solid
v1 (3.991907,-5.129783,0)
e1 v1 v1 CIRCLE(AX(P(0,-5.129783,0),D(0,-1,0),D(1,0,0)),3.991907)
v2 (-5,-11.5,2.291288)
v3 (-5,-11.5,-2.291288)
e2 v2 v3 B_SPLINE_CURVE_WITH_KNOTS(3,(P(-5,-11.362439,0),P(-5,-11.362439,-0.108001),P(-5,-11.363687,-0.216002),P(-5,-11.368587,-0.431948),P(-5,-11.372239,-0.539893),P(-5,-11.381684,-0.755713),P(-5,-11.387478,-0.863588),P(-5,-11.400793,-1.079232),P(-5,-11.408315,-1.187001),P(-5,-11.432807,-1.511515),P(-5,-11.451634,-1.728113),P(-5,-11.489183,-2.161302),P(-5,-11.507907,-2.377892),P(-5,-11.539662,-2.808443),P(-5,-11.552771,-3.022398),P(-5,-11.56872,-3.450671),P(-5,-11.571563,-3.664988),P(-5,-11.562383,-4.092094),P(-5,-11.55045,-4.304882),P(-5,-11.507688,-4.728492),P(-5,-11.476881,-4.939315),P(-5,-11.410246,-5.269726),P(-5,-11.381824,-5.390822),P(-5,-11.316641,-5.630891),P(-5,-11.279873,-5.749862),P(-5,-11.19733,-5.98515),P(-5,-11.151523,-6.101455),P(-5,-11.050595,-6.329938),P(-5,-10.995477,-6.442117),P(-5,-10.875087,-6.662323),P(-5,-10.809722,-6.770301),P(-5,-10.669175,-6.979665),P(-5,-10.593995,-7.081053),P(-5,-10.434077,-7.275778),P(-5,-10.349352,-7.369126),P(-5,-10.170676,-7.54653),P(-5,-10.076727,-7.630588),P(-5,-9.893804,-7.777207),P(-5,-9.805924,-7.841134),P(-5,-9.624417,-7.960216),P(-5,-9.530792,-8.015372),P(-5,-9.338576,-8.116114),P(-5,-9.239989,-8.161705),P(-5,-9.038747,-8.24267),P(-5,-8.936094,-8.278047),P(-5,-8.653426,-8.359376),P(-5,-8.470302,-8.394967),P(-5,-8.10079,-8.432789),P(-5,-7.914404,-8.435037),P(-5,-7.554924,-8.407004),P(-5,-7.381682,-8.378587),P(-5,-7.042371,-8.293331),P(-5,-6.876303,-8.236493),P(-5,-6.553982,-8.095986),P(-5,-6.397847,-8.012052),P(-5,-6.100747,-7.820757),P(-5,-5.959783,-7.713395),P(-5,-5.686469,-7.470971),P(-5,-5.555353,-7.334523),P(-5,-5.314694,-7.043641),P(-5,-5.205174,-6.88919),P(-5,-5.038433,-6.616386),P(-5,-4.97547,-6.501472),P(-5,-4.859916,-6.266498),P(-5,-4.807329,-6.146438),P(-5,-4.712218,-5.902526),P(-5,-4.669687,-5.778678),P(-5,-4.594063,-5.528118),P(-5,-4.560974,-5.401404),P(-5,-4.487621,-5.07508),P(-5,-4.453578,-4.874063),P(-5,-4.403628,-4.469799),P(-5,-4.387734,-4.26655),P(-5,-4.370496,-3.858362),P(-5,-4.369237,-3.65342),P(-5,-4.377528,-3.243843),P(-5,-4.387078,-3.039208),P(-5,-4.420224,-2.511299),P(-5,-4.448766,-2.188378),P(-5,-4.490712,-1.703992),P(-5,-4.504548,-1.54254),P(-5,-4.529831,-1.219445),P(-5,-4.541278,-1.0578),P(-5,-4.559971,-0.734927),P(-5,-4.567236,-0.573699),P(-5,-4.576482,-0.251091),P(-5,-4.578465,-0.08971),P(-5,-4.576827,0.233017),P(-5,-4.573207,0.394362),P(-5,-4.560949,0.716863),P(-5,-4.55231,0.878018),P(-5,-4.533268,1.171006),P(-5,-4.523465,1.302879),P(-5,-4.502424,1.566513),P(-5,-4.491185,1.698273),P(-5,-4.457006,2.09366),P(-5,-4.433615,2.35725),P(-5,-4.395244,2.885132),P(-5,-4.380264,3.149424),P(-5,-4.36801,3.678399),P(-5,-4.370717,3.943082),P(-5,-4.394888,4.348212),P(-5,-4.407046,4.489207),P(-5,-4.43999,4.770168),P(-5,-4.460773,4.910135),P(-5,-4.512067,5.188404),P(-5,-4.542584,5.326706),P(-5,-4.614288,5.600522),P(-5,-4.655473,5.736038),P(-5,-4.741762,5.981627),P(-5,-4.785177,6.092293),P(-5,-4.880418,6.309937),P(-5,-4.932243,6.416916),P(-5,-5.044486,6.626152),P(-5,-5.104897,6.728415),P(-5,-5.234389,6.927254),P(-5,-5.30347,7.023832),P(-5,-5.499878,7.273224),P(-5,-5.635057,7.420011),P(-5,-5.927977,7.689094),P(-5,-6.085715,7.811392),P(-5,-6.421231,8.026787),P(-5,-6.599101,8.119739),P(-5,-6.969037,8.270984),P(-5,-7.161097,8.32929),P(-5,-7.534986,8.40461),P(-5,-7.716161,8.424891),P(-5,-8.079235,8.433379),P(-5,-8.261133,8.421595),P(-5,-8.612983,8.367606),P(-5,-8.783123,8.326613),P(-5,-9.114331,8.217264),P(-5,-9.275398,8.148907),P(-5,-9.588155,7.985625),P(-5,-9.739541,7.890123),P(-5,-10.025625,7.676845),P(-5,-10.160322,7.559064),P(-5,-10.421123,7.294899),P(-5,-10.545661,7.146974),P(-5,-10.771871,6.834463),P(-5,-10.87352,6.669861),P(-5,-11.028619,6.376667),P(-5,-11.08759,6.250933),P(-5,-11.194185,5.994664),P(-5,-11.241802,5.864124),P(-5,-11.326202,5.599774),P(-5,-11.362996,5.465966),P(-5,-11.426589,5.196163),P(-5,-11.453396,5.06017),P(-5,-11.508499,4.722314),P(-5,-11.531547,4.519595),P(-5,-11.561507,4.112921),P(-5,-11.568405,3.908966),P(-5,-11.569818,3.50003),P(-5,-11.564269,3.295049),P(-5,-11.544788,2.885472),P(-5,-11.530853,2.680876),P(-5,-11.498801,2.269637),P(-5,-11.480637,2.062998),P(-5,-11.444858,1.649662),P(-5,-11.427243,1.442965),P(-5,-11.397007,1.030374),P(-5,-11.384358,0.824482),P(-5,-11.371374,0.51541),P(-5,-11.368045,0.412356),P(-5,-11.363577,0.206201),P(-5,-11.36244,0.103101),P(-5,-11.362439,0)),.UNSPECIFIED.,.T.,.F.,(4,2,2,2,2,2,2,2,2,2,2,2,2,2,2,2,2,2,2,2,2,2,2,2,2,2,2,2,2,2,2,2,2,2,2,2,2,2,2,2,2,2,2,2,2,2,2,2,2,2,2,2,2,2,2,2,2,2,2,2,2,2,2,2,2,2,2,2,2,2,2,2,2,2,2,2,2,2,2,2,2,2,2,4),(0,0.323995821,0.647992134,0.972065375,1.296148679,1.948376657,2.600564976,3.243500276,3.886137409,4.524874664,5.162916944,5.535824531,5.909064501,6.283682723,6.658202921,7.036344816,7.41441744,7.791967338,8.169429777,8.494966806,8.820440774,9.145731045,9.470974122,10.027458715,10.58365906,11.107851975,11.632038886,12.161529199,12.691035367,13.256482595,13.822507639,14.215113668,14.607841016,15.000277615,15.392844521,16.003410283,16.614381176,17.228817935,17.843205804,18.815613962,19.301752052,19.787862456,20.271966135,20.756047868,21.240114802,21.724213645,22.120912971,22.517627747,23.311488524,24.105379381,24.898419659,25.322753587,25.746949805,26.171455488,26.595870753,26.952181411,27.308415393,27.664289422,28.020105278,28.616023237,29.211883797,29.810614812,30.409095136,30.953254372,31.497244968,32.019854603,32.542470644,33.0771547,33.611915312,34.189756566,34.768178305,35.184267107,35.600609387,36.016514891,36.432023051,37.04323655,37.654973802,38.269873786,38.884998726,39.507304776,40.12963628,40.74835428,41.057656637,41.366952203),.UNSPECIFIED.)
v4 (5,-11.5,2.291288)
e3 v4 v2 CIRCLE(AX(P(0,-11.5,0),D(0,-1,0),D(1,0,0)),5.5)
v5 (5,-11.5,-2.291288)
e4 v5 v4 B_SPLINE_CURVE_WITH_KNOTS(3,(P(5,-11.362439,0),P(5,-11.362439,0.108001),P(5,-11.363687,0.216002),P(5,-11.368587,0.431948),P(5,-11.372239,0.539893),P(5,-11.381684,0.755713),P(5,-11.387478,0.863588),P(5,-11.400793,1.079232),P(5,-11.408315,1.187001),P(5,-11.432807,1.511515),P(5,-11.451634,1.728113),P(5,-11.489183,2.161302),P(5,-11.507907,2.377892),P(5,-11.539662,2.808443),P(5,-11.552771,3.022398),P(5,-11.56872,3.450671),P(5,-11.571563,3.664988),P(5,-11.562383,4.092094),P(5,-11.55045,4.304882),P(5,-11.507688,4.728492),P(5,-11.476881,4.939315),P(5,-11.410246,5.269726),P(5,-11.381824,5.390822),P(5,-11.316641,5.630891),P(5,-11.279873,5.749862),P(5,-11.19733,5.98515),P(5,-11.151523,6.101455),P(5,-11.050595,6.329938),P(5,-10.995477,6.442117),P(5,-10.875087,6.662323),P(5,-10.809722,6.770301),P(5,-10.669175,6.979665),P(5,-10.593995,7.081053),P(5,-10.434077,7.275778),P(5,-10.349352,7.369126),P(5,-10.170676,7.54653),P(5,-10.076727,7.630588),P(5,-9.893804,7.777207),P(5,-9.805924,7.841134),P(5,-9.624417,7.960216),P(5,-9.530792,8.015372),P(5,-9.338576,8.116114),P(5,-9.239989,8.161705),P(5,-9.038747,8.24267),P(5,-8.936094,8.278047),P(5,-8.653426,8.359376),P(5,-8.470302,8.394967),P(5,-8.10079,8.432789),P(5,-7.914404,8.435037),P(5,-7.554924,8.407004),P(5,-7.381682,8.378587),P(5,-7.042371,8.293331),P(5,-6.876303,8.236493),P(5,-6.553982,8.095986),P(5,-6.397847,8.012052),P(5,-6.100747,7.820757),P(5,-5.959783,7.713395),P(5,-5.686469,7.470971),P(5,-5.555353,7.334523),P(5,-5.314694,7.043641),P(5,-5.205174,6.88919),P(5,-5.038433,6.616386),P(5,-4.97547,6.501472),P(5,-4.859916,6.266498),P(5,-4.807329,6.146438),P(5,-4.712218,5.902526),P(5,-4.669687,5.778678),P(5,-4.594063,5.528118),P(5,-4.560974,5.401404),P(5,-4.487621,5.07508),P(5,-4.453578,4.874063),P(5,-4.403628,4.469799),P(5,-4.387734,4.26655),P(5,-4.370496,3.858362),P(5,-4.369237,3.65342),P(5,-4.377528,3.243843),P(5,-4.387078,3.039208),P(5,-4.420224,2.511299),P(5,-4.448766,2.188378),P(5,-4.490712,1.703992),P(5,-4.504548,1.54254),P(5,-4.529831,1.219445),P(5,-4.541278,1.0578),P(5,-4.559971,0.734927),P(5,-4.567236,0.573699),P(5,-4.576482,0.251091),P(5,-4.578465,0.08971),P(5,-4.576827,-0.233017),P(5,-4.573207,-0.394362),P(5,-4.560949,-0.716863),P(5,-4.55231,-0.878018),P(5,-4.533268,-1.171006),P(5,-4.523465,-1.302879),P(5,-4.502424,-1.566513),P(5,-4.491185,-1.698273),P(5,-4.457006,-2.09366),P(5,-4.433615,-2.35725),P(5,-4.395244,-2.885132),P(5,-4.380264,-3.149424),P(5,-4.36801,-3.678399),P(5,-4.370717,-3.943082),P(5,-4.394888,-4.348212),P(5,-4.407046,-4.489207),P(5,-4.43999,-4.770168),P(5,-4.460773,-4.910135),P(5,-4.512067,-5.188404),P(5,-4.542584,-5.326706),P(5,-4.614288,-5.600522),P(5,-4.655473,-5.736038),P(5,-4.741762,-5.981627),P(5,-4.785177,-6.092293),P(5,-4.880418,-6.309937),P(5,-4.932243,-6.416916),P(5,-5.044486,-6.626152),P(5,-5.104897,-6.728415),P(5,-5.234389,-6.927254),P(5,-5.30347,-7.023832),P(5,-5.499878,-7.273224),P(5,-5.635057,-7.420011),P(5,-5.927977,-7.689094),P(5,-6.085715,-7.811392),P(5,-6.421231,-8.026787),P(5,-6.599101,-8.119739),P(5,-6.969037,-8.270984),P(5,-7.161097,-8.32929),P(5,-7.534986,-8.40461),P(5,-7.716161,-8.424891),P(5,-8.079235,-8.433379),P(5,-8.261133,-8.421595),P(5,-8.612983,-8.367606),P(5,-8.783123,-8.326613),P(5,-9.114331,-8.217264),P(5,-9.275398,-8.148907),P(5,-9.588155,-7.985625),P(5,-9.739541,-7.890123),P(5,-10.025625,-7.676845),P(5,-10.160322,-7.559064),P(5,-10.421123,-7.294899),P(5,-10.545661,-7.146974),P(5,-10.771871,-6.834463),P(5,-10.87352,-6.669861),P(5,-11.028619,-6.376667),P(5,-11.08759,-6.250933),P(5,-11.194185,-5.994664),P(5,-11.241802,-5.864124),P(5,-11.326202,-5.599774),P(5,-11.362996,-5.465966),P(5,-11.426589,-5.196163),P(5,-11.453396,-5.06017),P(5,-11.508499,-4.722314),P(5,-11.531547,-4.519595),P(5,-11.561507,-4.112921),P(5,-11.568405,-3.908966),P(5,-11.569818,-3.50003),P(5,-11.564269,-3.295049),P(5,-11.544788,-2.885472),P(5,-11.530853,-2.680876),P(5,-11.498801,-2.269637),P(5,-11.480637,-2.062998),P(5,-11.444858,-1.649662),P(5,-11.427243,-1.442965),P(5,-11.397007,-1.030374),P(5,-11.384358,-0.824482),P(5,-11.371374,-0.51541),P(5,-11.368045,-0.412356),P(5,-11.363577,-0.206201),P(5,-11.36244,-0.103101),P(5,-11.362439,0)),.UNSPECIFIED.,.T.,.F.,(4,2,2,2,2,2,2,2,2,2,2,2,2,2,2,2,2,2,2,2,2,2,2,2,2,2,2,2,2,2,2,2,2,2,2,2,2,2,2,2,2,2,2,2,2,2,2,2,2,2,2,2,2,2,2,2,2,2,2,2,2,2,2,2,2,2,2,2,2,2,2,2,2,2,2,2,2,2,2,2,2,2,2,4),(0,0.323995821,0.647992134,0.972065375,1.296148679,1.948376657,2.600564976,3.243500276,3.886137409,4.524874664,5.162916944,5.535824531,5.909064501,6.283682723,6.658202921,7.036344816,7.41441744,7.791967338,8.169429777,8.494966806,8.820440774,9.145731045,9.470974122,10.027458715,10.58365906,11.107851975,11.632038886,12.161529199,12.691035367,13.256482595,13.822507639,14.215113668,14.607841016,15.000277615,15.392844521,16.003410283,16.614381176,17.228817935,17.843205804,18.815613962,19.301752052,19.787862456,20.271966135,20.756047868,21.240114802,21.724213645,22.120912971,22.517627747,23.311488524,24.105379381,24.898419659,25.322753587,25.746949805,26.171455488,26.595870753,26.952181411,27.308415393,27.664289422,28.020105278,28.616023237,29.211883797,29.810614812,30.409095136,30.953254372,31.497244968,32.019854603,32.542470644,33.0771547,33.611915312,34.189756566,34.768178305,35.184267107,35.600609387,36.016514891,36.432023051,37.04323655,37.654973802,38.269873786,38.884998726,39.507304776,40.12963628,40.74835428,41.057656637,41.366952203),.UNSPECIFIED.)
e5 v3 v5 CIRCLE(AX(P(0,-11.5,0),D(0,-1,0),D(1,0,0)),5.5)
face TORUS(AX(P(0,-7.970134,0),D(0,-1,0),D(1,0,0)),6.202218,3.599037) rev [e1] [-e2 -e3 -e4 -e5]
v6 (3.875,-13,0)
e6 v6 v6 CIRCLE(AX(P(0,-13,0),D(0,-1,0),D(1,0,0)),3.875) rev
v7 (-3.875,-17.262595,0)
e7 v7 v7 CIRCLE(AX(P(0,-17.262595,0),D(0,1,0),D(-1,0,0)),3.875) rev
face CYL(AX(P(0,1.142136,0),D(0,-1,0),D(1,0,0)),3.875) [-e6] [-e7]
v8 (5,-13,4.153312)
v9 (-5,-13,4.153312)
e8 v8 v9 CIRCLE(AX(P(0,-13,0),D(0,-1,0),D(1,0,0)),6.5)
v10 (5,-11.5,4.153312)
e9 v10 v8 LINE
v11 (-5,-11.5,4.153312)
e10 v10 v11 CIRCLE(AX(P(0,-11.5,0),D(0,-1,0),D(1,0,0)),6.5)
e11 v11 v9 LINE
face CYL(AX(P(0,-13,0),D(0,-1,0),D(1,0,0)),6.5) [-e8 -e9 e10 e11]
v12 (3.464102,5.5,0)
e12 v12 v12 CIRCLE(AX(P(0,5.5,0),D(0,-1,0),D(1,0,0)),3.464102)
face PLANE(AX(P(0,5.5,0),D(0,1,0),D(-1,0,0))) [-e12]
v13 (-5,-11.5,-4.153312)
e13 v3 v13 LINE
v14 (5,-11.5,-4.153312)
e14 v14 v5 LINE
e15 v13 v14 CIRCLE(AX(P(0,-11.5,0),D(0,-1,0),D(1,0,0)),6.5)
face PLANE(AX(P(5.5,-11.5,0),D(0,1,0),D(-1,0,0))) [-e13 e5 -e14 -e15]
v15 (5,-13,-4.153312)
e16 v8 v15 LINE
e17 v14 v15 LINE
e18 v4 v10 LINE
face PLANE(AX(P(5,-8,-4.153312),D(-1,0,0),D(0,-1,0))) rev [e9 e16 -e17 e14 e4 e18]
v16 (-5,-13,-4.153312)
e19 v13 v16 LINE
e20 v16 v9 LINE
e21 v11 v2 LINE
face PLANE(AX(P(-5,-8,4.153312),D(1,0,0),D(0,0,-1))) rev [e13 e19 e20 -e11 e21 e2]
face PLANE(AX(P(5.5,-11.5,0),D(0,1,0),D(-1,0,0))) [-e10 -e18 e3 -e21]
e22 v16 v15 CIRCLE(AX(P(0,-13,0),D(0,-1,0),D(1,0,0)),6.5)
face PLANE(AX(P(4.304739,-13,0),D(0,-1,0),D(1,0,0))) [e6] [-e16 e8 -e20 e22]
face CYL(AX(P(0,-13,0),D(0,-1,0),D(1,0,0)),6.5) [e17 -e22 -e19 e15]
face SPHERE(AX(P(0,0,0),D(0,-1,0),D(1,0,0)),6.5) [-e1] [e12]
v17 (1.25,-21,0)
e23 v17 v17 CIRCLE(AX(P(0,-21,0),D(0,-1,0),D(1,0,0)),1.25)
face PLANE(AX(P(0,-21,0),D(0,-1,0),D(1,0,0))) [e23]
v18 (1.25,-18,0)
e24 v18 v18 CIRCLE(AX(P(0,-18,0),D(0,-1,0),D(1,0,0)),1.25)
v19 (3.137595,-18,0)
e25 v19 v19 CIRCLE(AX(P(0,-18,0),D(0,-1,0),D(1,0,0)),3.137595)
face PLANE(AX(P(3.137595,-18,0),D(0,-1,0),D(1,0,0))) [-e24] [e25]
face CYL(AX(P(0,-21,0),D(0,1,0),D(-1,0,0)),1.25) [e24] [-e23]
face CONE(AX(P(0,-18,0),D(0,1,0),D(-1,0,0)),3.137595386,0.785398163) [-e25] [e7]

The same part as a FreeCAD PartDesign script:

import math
import FreeCAD as App
import Part
import Sketcher
from FreeCAD import Vector
Q = App.Units.Quantity

doc = App.newDocument("Part")
body = doc.addObject("PartDesign::Body", "Body")

sketch1 = body.newObject("Sketcher::SketchObject", "Sketch")
sketch1.AttachmentSupport = (doc.getObject("XY_Plane"), [""])
sketch1.MapMode = "FlatFace"
sketch1.addGeometry([
    Part.LineSegment(Vector(4.3, -16.8, 0), Vector(4.3, -13, 0)),
    Part.LineSegment(Vector(4.3, -13, 0), Vector(6.5, -13, 0)),
    Part.LineSegment(Vector(6.5, -13, 0), Vector(6.5, -11.5, 0)),
    Part.LineSegment(Vector(6.5, -11.5, 0), Vector(5.5, -11.5, 0)),
    Part.ArcOfCircle(Part.Circle(Vector(6.2, -8, 0), Vector(0, 0, 1), 3.6), math.radians(128), math.radians(259)),
    Part.ArcOfCircle(Part.Circle(Vector(0, 0, 0), Vector(0, 0, 1), 6.5), math.radians(-52), math.radians(58)),
    Part.LineSegment(Vector(3.5, 5.5, 0), Vector(0, 5.5, 0)),
    Part.LineSegment(Vector(0, 5.5, 0), Vector(0, -18, 0)),
    Part.LineSegment(Vector(0, -18, 0), Vector(3.1, -18, 0)),
    Part.LineSegment(Vector(3.1, -18, 0), Vector(4.3, -16.8, 0)),
], False)
sketch1.addConstraint([
    Sketcher.Constraint("Coincident", 0, 2, 1, 1),
    Sketcher.Constraint("Coincident", 1, 2, 2, 1),
    Sketcher.Constraint("Coincident", 2, 2, 3, 1),
    Sketcher.Constraint("Coincident", 3, 2, 4, 2),
    Sketcher.Constraint("Tangent", 4, 1, 5, 1),
    Sketcher.Constraint("Coincident", 5, 2, 6, 1),
    Sketcher.Constraint("Coincident", 6, 2, 7, 1),
    Sketcher.Constraint("Coincident", 7, 2, 8, 1),
    Sketcher.Constraint("Coincident", 8, 2, 9, 1),
    Sketcher.Constraint("Coincident", 9, 2, 0, 1),
    Sketcher.Constraint("Vertical", 0),
    Sketcher.Constraint("Horizontal", 1),
    Sketcher.Constraint("Vertical", 2),
    Sketcher.Constraint("Horizontal", 3),
    Sketcher.Constraint("Horizontal", 6),
    Sketcher.Constraint("Vertical", 7),
    Sketcher.Constraint("Horizontal", 8),
    Sketcher.Constraint("Coincident", 5, 3, -1, 1),
    Sketcher.Constraint("PointOnObject", 6, 2, -2),
    Sketcher.Constraint("Radius", 5, 6.5),
    Sketcher.Constraint("DistanceX", 3, 2, 3, 1, 1.0),
    Sketcher.Constraint("Angle", 9, Q("45 deg")),
    Sketcher.Constraint("DistanceY", 2, 1, 2, 2, 1.5),
    Sketcher.Constraint("DistanceY", 7, 2, 7, 1, 23.5),
    Sketcher.Constraint("DistanceY", 0, 2, -1, 1, 13.0),
    Sketcher.Constraint("DistanceY", 7, 2, -1, 1, 18.0),
    Sketcher.Constraint("DistanceX", -1, 1, 1, 2, 6.5),
    Sketcher.Constraint("Radius", 4, 3.599037),
    Sketcher.Constraint("DistanceX", 1, 1, 1, 2, 2.195261),
    Sketcher.Constraint("Distance", 9, 1.65059),
])
revolution = body.newObject("PartDesign::Revolution", "Revolution")
revolution.Profile = sketch1
revolution.ReferenceAxis = (sketch1, ["V_Axis"])
revolution.Angle = 360

sketch2 = body.newObject("Sketcher::SketchObject", "Sketch001")
sketch2.AttachmentSupport = (doc.getObject("XZ_Plane"), [""])
sketch2.MapMode = "FlatFace"
sketch2.AttachmentOffset = App.Placement(Vector(0, 0, 13), App.Rotation())
sketch2.addGeometry([
    Part.LineSegment(Vector(-5, -4, 0), Vector(-5, 4, 0)),
    Part.ArcOfCircle(Part.Circle(Vector(0, 0, 0), Vector(0, 0, 1), 6), math.radians(140), math.radians(220)),
    Part.LineSegment(Vector(5, 4, 0), Vector(5, -4, 0)),
    Part.ArcOfCircle(Part.Circle(Vector(0, 0, 0), Vector(0, 0, 1), 6), math.radians(-40), math.radians(40)),
], False)
sketch2.addConstraint([
    Sketcher.Constraint("Coincident", 0, 1, 1, 2),
    Sketcher.Constraint("Coincident", 1, 1, 0, 2),
    Sketcher.Constraint("Coincident", 2, 1, 3, 2),
    Sketcher.Constraint("Coincident", 3, 1, 2, 2),
    Sketcher.Constraint("Vertical", 0),
    Sketcher.Constraint("Vertical", 2),
    Sketcher.Constraint("Coincident", 1, 3, -1, 1),
    Sketcher.Constraint("Coincident", 3, 3, -1, 1),
    Sketcher.Constraint("Equal", 1, 3),
    Sketcher.Constraint("Horizontal", 1, 1, 2, 1),
    Sketcher.Constraint("Radius", 1, 6.5),
    Sketcher.Constraint("DistanceX", 0, 1, -1, 1, 5.0),
])
pocket1 = body.newObject("PartDesign::Pocket", "Pocket")
pocket1.Profile = sketch2
pocket1.Length = 5

sketch3 = body.newObject("Sketcher::SketchObject", "Sketch002")
sketch3.AttachmentSupport = (doc.getObject("XZ_Plane"), [""])
sketch3.MapMode = "FlatFace"
sketch3.AttachmentOffset = App.Placement(Vector(0, 0, 18), App.Rotation())
sketch3.addGeometry(Part.Circle(Vector(0, 0, 0), Vector(0, 0, 1), 1.2), False)
sketch3.addConstraint([
    Sketcher.Constraint("Coincident", 0, 3, -1, 1),
    Sketcher.Constraint("Diameter", 0, 2.5),
])
pad1 = body.newObject("PartDesign::Pad", "Pad")
pad1.Profile = sketch3
pad1.Length = 3

sketch4 = body.newObject("Sketcher::SketchObject", "Sketch003")
sketch4.AttachmentSupport = (doc.getObject("XZ_Plane"), [""])
sketch4.MapMode = "FlatFace"
sketch4.AttachmentOffset = App.Placement(Vector(0, 0, 18), App.Rotation())
sketch4.addGeometry([
    Part.Circle(Vector(0, 0, 0), Vector(0, 0, 1), 5),
    Part.Circle(Vector(0, 0, 0), Vector(0, 0, 1), 3.9),
], False)
sketch4.addConstraint([
    Sketcher.Constraint("Coincident", 0, 3, -1, 1),
    Sketcher.Constraint("Coincident", 1, 3, -1, 1),
    Sketcher.Constraint("Diameter", 0, 10.0),
    Sketcher.Constraint("Diameter", 1, 7.75),
])
pocket2 = body.newObject("PartDesign::Pocket", "Pocket001")
pocket2.Profile = sketch4
pocket2.Length = 5

doc.recompute()
